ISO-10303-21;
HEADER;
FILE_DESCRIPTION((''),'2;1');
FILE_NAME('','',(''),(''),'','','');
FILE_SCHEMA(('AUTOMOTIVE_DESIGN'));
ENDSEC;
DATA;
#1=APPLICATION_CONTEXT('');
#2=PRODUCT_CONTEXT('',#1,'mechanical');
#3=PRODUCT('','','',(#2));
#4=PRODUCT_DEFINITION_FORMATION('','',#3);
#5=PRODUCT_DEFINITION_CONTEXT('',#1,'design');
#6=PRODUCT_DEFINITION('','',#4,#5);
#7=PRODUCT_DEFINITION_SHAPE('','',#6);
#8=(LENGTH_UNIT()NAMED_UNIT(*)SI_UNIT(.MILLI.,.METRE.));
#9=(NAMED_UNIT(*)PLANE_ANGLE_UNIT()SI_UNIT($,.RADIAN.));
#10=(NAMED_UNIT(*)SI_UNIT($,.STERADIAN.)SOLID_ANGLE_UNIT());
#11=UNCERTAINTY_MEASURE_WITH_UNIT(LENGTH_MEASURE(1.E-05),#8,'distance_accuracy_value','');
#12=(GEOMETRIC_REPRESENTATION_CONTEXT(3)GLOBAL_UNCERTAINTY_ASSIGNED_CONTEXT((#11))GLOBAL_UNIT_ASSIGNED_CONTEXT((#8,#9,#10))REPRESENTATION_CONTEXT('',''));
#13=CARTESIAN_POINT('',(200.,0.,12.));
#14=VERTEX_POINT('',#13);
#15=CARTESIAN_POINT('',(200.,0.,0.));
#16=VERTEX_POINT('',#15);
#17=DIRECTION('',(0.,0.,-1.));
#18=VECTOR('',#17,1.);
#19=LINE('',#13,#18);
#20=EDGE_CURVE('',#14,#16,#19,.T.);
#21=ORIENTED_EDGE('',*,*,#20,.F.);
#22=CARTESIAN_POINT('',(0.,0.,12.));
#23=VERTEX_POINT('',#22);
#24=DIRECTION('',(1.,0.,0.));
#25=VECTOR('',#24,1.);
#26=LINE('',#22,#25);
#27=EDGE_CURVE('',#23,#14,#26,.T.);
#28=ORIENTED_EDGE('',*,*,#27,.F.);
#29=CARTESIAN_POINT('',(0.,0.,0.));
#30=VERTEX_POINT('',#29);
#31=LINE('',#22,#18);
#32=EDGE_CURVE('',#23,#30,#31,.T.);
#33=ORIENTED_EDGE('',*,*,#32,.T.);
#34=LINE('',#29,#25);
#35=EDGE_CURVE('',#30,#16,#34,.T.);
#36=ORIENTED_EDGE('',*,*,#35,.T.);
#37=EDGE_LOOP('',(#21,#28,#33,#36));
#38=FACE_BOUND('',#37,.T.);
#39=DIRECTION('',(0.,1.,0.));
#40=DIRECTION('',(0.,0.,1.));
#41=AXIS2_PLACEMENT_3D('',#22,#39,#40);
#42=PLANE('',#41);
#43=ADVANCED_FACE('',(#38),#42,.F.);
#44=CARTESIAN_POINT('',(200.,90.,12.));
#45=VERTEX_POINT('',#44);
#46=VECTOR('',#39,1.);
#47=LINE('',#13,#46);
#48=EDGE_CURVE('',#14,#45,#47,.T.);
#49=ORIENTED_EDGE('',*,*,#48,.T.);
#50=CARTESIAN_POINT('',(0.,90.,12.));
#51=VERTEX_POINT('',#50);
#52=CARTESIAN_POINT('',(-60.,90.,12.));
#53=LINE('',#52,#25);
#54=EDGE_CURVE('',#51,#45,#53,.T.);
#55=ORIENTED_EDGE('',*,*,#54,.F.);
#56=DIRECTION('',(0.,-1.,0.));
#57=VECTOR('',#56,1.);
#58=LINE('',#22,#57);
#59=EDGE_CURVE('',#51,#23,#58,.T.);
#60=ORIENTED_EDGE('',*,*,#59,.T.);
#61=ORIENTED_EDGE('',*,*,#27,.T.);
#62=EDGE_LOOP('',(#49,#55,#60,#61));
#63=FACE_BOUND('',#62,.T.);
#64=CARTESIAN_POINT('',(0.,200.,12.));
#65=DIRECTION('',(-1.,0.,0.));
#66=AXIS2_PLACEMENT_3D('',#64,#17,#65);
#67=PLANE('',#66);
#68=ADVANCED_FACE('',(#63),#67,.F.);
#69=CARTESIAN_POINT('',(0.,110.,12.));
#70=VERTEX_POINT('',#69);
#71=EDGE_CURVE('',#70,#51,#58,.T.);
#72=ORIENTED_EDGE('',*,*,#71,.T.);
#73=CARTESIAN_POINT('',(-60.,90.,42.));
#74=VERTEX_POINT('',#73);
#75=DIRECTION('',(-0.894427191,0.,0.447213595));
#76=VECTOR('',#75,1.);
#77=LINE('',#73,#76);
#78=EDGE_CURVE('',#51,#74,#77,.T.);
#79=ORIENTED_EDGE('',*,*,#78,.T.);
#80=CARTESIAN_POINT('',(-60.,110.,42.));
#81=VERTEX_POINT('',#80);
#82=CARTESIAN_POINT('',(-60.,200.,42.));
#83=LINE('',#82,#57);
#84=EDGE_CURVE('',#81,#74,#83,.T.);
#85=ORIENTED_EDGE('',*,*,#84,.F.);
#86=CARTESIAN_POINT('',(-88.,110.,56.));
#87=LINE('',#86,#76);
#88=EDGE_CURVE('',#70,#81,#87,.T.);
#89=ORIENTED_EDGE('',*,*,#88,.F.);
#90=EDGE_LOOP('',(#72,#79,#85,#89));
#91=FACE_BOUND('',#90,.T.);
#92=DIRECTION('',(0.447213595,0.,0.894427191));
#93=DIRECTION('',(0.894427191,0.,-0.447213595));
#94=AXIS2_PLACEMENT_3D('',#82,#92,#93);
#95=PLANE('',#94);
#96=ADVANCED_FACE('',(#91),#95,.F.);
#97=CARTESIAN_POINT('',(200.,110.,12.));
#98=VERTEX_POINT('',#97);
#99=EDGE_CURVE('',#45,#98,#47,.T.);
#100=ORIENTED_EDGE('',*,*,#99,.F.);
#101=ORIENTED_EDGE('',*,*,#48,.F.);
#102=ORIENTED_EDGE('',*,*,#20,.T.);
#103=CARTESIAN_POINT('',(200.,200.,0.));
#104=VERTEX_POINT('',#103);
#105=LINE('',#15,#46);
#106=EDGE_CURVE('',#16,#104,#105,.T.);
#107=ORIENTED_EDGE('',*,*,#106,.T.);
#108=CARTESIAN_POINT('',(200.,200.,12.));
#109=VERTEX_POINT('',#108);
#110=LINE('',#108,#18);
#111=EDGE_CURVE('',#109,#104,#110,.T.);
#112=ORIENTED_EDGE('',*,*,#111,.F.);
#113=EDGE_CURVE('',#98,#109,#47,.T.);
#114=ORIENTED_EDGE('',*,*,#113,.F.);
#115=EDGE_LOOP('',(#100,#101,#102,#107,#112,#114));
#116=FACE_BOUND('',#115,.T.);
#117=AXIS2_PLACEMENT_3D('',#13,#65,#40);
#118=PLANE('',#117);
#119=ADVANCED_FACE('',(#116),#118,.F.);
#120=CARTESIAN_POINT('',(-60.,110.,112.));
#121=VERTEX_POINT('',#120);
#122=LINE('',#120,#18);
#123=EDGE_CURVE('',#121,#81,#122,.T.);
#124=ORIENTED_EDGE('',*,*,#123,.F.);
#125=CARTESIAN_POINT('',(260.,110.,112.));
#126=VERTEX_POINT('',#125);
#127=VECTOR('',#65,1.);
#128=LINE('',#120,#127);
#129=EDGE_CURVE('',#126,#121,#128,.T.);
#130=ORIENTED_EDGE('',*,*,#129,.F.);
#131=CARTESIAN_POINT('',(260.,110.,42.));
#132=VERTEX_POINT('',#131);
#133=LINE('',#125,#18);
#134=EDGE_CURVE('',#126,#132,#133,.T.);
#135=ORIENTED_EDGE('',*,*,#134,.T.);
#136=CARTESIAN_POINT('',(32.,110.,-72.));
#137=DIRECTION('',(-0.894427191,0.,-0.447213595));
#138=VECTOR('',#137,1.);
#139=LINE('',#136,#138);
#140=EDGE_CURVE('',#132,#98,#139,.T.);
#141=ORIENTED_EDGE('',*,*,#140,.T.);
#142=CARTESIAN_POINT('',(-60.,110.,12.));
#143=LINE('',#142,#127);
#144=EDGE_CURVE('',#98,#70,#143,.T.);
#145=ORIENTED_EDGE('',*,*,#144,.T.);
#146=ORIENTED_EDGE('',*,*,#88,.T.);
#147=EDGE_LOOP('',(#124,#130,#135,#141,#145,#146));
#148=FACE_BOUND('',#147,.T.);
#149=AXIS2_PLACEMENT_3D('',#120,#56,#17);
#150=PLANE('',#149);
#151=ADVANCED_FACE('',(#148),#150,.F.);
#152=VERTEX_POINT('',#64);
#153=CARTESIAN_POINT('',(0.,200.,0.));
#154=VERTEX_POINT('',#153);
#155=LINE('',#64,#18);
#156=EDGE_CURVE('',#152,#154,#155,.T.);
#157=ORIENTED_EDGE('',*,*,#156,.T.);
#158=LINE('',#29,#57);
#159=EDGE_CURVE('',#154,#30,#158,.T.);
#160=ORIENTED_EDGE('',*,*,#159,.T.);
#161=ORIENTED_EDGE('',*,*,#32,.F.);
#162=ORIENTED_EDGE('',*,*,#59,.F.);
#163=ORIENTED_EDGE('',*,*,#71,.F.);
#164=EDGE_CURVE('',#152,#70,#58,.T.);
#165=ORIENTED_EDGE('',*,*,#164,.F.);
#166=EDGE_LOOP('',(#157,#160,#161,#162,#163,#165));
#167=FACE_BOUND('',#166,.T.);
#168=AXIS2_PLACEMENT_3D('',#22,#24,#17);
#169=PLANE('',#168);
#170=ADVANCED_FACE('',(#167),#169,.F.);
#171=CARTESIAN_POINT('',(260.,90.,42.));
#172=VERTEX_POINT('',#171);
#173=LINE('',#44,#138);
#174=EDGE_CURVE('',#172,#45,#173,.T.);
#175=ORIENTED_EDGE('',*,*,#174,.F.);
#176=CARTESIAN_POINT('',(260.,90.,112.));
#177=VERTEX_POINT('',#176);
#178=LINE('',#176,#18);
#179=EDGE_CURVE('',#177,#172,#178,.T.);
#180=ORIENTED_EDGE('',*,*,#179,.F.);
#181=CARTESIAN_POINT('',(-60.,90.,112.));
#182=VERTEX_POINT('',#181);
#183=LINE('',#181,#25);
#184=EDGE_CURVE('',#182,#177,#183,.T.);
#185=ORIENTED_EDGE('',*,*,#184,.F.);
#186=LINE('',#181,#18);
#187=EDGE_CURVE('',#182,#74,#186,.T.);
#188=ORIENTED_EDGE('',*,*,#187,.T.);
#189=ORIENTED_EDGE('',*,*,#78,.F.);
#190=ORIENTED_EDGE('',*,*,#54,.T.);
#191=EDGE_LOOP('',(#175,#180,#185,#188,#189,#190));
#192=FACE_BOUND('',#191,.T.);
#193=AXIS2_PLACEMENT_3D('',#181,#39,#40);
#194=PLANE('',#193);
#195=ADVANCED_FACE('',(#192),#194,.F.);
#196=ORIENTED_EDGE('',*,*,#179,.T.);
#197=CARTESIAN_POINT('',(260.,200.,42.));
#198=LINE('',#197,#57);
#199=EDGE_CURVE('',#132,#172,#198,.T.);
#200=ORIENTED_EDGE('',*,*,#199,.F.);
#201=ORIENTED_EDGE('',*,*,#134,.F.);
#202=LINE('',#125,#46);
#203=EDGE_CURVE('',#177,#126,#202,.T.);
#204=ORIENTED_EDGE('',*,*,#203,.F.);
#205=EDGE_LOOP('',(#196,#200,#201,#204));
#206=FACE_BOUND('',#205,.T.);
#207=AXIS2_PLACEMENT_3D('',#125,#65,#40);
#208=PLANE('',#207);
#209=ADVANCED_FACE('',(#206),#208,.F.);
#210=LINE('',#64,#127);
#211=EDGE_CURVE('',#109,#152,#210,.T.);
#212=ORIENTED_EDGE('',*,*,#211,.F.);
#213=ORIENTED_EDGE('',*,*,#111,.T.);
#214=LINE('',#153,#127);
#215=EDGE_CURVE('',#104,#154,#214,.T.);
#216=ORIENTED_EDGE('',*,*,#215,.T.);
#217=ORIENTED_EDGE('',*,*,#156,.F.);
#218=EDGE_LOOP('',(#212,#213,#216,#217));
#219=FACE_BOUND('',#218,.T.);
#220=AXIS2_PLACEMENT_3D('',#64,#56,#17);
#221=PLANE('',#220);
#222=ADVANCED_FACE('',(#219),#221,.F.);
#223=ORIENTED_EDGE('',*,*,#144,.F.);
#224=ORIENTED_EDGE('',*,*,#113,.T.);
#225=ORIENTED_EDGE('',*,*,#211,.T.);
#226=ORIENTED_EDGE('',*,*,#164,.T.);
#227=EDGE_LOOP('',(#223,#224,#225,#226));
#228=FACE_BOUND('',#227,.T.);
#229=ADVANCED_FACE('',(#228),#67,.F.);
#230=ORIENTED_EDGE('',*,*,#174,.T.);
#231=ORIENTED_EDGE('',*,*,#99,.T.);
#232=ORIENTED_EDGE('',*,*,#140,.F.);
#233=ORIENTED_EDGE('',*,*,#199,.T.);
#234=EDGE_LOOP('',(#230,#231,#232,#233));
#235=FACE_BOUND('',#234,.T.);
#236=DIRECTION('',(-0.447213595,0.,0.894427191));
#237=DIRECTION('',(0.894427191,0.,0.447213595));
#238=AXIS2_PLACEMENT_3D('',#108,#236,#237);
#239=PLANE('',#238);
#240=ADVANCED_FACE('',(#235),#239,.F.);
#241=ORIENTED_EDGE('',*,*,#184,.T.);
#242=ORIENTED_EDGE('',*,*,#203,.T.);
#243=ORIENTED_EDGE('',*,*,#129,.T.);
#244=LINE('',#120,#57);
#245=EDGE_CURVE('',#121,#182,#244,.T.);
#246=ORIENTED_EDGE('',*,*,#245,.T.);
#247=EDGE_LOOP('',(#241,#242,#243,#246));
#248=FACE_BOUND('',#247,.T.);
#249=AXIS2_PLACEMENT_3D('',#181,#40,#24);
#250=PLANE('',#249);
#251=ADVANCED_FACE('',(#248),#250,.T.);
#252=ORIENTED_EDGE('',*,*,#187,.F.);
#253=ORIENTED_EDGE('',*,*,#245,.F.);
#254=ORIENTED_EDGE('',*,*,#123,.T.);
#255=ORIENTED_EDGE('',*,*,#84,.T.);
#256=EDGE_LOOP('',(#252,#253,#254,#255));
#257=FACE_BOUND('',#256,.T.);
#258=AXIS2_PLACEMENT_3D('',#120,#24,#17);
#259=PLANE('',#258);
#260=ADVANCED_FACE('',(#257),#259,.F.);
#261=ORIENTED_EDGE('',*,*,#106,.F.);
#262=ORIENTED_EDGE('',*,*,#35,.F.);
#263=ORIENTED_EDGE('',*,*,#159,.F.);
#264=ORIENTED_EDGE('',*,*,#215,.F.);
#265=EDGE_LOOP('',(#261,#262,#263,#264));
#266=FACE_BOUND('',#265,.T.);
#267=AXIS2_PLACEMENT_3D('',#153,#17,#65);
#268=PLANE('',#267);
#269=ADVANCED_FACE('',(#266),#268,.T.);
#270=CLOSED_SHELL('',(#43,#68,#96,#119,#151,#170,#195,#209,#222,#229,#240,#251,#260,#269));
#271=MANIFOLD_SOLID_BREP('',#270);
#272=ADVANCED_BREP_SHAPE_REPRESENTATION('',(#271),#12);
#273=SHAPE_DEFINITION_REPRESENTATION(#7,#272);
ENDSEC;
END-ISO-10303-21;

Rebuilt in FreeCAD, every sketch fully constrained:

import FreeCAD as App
import Part
import Sketcher
Q = App.Units.Quantity


def add_polygon(sketch, points):
    """Adds a closed chain of lines whose ends are joined by coincident constraints."""
    first, n = sketch.GeometryCount, len(points)
    for a, b in zip(points, points[1:] + points[:1]):
        sketch.addGeometry(Part.LineSegment(App.Vector(*a, 0), App.Vector(*b, 0)), False)
    for i in range(n):
        sketch.addConstraint(Sketcher.Constraint("Coincident", first + i, 2, first + (i + 1) % n, 1))

doc = App.newDocument("Part")
body = doc.addObject("PartDesign::Body", "Body")

# Sketch on XY plane
sketch1 = doc.addObject("Sketcher::SketchObject", "Sketch")
body.addObject(sketch1)
sketch1.AttachmentSupport = (doc.XY_Plane, [""])
sketch1.MapMode = "FlatFace"
add_polygon(sketch1, [(0, 200), (0, 0), (200, 0), (200, 200)])  # lines 0-3
sketch1.addConstraint([
    Sketcher.Constraint("Vertical", 0),
    Sketcher.Constraint("Horizontal", 1),
    Sketcher.Constraint("Vertical", 2),
    Sketcher.Constraint("Horizontal", 3),
    Sketcher.Constraint("Coincident", 0, 2, -1, 1),
    Sketcher.Constraint("Equal", 3, 0),
    Sketcher.Constraint("DistanceX", 1, 1, 1, 2, Q("200 mm")),
])
pad1 = doc.addObject("PartDesign::Pad", "Pad")
body.addObject(pad1)
pad1.Profile = sketch1
pad1.Length = 12

# Sketch on XY plane
sketch2 = doc.addObject("Sketcher::SketchObject", "Sketch001")
body.addObject(sketch2)
sketch2.AttachmentSupport = (doc.XY_Plane, [""])
sketch2.MapMode = "FlatFace"
sketch2.AttachmentOffset = App.Placement(App.Vector(0, 0, 12), App.Rotation())
add_polygon(sketch2, [(-60, 110), (-60, 90), (260, 90), (260, 110)])  # lines 0-3
sketch2.addConstraint([
    Sketcher.Constraint("Vertical", 0),
    Sketcher.Constraint("Horizontal", 1),
    Sketcher.Constraint("Vertical", 2),
    Sketcher.Constraint("Horizontal", 3),
    Sketcher.Constraint("DistanceX", 1, 1, 1, 2, Q("320 mm")),
    Sketcher.Constraint("DistanceY", 0, 2, 0, 1, Q("20 mm")),
    Sketcher.Constraint("DistanceX", 0, 2, -1, 1, Q("60 mm")),
    Sketcher.Constraint("DistanceY", -1, 1, 0, 2, Q("90 mm")),
])
pad2 = doc.addObject("PartDesign::Pad", "Pad001")
body.addObject(pad2)
pad2.Profile = sketch2
pad2.Length = 100

# Sketch on XZ plane
sketch3 = doc.addObject("Sketcher::SketchObject", "Sketch002")
body.addObject(sketch3)
sketch3.AttachmentSupport = (doc.XZ_Plane, [""])
sketch3.MapMode = "FlatFace"
sketch3.AttachmentOffset = App.Placement(App.Vector(0, 0, -90), App.Rotation())
add_polygon(sketch3, [(260, 42), (200, 12), (260, 12)])  # lines 0-2
add_polygon(sketch3, [(0, 12), (-60, 42), (-60, 12)])  # lines 3-5
sketch3.addConstraint([
    Sketcher.Constraint("Horizontal", 1),
    Sketcher.Constraint("Vertical", 2),
    Sketcher.Constraint("Vertical", 4),
    Sketcher.Constraint("Horizontal", 5),
    Sketcher.Constraint("PointOnObject", 5, 2, -2),
    Sketcher.Constraint("Horizontal", 2, 2, 3, 2),
    Sketcher.Constraint("Horizontal", 1, 2, 4, 2),
    Sketcher.Constraint("Equal", 1, 5),
    Sketcher.Constraint("DistanceX", 1, 1, 1, 2, Q("60 mm")),
    Sketcher.Constraint("DistanceY", 2, 1, 2, 2, Q("30 mm")),
    Sketcher.Constraint("DistanceX", -1, 1, 0, 2, Q("200 mm")),
    Sketcher.Constraint("DistanceY", -1, 1, 0, 2, Q("12 mm")),
])
pocket1 = doc.addObject("PartDesign::Pocket", "Pocket")
body.addObject(pocket1)
pocket1.Profile = sketch3
pocket1.Type = "ThroughAll"

doc.recompute()
